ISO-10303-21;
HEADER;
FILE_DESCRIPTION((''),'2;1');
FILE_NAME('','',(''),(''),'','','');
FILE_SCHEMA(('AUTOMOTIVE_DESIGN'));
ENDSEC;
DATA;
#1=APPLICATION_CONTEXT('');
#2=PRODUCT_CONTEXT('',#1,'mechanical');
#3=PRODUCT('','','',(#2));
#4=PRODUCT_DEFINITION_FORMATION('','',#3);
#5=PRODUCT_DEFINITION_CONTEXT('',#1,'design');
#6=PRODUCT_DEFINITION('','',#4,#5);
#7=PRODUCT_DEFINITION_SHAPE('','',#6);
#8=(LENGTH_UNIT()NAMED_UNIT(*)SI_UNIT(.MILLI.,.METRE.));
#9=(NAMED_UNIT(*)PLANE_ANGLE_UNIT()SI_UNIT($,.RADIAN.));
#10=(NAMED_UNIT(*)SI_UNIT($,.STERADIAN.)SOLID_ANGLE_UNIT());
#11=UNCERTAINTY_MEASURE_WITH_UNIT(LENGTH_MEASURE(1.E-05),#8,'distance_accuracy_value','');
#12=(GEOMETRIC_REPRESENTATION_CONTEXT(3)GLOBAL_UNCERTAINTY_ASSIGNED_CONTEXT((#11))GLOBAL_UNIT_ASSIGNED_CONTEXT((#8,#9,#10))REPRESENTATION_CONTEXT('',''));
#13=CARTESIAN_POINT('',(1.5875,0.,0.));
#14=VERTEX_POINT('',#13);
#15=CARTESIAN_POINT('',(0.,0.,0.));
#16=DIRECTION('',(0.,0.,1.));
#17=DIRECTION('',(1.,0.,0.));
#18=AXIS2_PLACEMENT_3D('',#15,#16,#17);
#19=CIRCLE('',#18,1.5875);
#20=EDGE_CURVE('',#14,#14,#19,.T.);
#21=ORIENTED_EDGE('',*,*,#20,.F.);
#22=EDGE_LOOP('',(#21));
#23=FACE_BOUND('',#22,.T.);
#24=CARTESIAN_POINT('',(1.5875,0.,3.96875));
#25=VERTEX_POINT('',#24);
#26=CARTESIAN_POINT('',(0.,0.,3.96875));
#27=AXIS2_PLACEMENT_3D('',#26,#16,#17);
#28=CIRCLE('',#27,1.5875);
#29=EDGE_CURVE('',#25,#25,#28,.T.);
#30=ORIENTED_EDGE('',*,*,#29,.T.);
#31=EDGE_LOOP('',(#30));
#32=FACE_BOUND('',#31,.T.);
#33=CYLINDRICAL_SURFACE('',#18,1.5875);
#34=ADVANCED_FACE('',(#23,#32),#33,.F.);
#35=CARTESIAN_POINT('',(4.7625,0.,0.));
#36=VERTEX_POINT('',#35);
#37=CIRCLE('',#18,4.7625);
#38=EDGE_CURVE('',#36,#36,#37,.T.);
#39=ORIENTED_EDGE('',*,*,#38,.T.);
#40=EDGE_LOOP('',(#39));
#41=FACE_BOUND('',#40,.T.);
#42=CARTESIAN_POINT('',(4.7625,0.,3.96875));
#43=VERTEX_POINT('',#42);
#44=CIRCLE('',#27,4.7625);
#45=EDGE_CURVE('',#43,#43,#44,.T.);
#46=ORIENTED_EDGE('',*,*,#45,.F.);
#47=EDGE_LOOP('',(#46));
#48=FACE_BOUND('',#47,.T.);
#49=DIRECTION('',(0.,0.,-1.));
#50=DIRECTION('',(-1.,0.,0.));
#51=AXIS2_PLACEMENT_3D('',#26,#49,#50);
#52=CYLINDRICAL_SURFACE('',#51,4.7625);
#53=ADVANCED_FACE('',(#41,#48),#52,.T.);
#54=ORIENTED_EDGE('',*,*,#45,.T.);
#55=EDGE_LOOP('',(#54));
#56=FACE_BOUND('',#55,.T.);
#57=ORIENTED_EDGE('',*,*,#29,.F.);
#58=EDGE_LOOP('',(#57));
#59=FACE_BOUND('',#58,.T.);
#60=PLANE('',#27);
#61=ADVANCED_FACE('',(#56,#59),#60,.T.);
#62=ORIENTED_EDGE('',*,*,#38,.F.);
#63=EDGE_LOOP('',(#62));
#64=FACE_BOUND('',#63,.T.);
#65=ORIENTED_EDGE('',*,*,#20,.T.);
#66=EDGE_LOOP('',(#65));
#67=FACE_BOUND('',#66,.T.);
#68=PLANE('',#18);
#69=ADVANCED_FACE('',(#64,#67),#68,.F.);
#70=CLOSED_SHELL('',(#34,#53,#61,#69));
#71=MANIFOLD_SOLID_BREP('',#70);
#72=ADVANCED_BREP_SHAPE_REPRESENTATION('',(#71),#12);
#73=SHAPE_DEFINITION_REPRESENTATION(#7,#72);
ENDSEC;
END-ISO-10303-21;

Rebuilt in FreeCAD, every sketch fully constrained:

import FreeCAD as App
import Part
import Sketcher
Q = App.Units.Quantity

doc = App.newDocument("Part")
body = doc.addObject("PartDesign::Body", "Body")

# Sketch on XY plane
sketch1 = body.newObject("Sketcher::SketchObject", "Sketch")
sketch1.AttachmentSupport = (doc.getObject("XY_Plane"), [""])
sketch1.MapMode = "FlatFace"
sketch1.addGeometry(Part.Circle(App.Vector(0, 0, 0), App.Vector(0, 0, 1), 4.7625), False)
sketch1.addConstraint([
    Sketcher.Constraint("Coincident", 0, 3, -1, 1),
    Sketcher.Constraint("Diameter", 0, Q("0.375 in")),
])
pad1 = body.newObject("PartDesign::Pad", "Pad")
pad1.Profile = sketch1
pad1.Length = Q("0.15625 in")

# Sketch on XY plane
sketch2 = body.newObject("Sketcher::SketchObject", "Sketch001")
sketch2.AttachmentSupport = (doc.getObject("XY_Plane"), [""])
sketch2.MapMode = "FlatFace"
sketch2.AttachmentOffset = App.Placement(App.Vector(0, 0, 0.15625 * 25.4), App.Rotation())
sketch2.addGeometry(Part.Circle(App.Vector(0, 0, 0), App.Vector(0, 0, 1), 1.5875), False)
sketch2.addConstraint([
    Sketcher.Constraint("Coincident", 0, 3, -1, 1),
    Sketcher.Constraint("Diameter", 0, Q("0.125 in")),
])
pocket1 = body.newObject("PartDesign::Pocket", "Pocket")
pocket1.Profile = sketch2
pocket1.Type = "ThroughAll"

doc.recompute()
